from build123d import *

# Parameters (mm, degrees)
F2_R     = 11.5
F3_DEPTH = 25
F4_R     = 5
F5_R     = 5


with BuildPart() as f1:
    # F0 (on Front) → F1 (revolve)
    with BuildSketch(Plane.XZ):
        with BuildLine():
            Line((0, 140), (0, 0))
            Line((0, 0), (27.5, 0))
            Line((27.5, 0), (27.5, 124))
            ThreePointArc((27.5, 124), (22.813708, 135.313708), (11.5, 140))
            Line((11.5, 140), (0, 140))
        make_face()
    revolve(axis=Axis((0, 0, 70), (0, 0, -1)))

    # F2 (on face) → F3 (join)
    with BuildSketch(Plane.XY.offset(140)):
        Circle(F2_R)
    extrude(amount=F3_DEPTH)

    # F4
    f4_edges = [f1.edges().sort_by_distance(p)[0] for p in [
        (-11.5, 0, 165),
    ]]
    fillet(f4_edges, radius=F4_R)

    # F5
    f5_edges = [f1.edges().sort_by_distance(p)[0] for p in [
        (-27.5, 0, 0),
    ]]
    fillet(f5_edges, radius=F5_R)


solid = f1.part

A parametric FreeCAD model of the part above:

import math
import FreeCAD as App
import Part
import Sketcher


def edges_at(feature, points):
    """Names of the edges that pass closest to the given points."""
    edges = feature.Shape.Edges
    near = lambda p: min(range(len(edges)), key=lambda i: edges[i].distToShape(Part.Vertex(*p))[0])
    return sorted({f"Edge{near(p) + 1}" for p in points})

doc = App.newDocument("Part")
body = doc.addObject("PartDesign::Body", "Body")

# Sketch on XZ plane
sketch1 = body.newObject("Sketcher::SketchObject", "Sketch")
sketch1.AttachmentSupport = (doc.getObject("XZ_Plane"), [""])
sketch1.MapMode = "FlatFace"
sketch1.addGeometry([
    Part.LineSegment(App.Vector(0, 140, 0), App.Vector(0, 0, 0)),  # 0
    Part.LineSegment(App.Vector(0, 0, 0), App.Vector(27.5, 0, 0)),  # 1
    Part.LineSegment(App.Vector(27.5, 0, 0), App.Vector(27.5, 124, 0)),  # 2
    Part.ArcOfCircle(Part.Circle(App.Vector(11.499998, 123.999998, 0), App.Vector(0, 0, 1), 16.000002), math.radians(0.000006), math.radians(89.999994)),  # 3
    Part.LineSegment(App.Vector(11.5, 140, 0), App.Vector(0, 140, 0)),  # 4
], False)
sketch1.addConstraint([
    Sketcher.Constraint("Coincident", 0, 2, 1, 1),
    Sketcher.Constraint("Coincident", 1, 2, 2, 1),
    Sketcher.Constraint("Tangent", 2, 2, 3, 1),
    Sketcher.Constraint("Tangent", 3, 2, 4, 1),
    Sketcher.Constraint("Coincident", 4, 2, 0, 1),
    Sketcher.Constraint("Vertical", 0),
    Sketcher.Constraint("Horizontal", 1),
    Sketcher.Constraint("Vertical", 2),
    Sketcher.Constraint("Horizontal", 4),
    Sketcher.Constraint("Coincident", 0, 2, -1, 1),
    Sketcher.Constraint("Radius", 3, 16.000002),
    Sketcher.Constraint("DistanceY", 0, 2, 0, 1, 140.0),
    Sketcher.Constraint("DistanceX", 1, 1, 1, 2, 27.5),
])
revolution = body.newObject("PartDesign::Revolution", "Revolution")
revolution.Profile = sketch1
revolution.ReferenceAxis = (sketch1, ["V_Axis"])
revolution.Angle = 360

# Sketch on XY plane
sketch2 = body.newObject("Sketcher::SketchObject", "Sketch001")
sketch2.AttachmentSupport = (doc.getObject("XY_Plane"), [""])
sketch2.MapMode = "FlatFace"
sketch2.AttachmentOffset = App.Placement(App.Vector(0, 0, 140), App.Rotation())
sketch2.addGeometry(Part.Circle(App.Vector(0, 0, 0), App.Vector(0, 0, 1), 11.5), False)
sketch2.addConstraint([
    Sketcher.Constraint("Coincident", 0, 3, -1, 1),
    Sketcher.Constraint("Diameter", 0, 23.0),
])
pad1 = body.newObject("PartDesign::Pad", "Pad")
pad1.Profile = sketch2
pad1.Length = 25
doc.recompute()

fillet = body.newObject("PartDesign::Fillet", "Fillet")
fillet.Base = (pad1, edges_at(pad1, [(-11.5, 0, 165)]))
fillet.Radius = 5
doc.recompute()

fillet2 = body.newObject("PartDesign::Fillet", "Fillet001")
fillet2.Base = (fillet, edges_at(fillet, [(-27.5, 0, 0)]))
fillet2.Radius = 5

doc.recompute()
